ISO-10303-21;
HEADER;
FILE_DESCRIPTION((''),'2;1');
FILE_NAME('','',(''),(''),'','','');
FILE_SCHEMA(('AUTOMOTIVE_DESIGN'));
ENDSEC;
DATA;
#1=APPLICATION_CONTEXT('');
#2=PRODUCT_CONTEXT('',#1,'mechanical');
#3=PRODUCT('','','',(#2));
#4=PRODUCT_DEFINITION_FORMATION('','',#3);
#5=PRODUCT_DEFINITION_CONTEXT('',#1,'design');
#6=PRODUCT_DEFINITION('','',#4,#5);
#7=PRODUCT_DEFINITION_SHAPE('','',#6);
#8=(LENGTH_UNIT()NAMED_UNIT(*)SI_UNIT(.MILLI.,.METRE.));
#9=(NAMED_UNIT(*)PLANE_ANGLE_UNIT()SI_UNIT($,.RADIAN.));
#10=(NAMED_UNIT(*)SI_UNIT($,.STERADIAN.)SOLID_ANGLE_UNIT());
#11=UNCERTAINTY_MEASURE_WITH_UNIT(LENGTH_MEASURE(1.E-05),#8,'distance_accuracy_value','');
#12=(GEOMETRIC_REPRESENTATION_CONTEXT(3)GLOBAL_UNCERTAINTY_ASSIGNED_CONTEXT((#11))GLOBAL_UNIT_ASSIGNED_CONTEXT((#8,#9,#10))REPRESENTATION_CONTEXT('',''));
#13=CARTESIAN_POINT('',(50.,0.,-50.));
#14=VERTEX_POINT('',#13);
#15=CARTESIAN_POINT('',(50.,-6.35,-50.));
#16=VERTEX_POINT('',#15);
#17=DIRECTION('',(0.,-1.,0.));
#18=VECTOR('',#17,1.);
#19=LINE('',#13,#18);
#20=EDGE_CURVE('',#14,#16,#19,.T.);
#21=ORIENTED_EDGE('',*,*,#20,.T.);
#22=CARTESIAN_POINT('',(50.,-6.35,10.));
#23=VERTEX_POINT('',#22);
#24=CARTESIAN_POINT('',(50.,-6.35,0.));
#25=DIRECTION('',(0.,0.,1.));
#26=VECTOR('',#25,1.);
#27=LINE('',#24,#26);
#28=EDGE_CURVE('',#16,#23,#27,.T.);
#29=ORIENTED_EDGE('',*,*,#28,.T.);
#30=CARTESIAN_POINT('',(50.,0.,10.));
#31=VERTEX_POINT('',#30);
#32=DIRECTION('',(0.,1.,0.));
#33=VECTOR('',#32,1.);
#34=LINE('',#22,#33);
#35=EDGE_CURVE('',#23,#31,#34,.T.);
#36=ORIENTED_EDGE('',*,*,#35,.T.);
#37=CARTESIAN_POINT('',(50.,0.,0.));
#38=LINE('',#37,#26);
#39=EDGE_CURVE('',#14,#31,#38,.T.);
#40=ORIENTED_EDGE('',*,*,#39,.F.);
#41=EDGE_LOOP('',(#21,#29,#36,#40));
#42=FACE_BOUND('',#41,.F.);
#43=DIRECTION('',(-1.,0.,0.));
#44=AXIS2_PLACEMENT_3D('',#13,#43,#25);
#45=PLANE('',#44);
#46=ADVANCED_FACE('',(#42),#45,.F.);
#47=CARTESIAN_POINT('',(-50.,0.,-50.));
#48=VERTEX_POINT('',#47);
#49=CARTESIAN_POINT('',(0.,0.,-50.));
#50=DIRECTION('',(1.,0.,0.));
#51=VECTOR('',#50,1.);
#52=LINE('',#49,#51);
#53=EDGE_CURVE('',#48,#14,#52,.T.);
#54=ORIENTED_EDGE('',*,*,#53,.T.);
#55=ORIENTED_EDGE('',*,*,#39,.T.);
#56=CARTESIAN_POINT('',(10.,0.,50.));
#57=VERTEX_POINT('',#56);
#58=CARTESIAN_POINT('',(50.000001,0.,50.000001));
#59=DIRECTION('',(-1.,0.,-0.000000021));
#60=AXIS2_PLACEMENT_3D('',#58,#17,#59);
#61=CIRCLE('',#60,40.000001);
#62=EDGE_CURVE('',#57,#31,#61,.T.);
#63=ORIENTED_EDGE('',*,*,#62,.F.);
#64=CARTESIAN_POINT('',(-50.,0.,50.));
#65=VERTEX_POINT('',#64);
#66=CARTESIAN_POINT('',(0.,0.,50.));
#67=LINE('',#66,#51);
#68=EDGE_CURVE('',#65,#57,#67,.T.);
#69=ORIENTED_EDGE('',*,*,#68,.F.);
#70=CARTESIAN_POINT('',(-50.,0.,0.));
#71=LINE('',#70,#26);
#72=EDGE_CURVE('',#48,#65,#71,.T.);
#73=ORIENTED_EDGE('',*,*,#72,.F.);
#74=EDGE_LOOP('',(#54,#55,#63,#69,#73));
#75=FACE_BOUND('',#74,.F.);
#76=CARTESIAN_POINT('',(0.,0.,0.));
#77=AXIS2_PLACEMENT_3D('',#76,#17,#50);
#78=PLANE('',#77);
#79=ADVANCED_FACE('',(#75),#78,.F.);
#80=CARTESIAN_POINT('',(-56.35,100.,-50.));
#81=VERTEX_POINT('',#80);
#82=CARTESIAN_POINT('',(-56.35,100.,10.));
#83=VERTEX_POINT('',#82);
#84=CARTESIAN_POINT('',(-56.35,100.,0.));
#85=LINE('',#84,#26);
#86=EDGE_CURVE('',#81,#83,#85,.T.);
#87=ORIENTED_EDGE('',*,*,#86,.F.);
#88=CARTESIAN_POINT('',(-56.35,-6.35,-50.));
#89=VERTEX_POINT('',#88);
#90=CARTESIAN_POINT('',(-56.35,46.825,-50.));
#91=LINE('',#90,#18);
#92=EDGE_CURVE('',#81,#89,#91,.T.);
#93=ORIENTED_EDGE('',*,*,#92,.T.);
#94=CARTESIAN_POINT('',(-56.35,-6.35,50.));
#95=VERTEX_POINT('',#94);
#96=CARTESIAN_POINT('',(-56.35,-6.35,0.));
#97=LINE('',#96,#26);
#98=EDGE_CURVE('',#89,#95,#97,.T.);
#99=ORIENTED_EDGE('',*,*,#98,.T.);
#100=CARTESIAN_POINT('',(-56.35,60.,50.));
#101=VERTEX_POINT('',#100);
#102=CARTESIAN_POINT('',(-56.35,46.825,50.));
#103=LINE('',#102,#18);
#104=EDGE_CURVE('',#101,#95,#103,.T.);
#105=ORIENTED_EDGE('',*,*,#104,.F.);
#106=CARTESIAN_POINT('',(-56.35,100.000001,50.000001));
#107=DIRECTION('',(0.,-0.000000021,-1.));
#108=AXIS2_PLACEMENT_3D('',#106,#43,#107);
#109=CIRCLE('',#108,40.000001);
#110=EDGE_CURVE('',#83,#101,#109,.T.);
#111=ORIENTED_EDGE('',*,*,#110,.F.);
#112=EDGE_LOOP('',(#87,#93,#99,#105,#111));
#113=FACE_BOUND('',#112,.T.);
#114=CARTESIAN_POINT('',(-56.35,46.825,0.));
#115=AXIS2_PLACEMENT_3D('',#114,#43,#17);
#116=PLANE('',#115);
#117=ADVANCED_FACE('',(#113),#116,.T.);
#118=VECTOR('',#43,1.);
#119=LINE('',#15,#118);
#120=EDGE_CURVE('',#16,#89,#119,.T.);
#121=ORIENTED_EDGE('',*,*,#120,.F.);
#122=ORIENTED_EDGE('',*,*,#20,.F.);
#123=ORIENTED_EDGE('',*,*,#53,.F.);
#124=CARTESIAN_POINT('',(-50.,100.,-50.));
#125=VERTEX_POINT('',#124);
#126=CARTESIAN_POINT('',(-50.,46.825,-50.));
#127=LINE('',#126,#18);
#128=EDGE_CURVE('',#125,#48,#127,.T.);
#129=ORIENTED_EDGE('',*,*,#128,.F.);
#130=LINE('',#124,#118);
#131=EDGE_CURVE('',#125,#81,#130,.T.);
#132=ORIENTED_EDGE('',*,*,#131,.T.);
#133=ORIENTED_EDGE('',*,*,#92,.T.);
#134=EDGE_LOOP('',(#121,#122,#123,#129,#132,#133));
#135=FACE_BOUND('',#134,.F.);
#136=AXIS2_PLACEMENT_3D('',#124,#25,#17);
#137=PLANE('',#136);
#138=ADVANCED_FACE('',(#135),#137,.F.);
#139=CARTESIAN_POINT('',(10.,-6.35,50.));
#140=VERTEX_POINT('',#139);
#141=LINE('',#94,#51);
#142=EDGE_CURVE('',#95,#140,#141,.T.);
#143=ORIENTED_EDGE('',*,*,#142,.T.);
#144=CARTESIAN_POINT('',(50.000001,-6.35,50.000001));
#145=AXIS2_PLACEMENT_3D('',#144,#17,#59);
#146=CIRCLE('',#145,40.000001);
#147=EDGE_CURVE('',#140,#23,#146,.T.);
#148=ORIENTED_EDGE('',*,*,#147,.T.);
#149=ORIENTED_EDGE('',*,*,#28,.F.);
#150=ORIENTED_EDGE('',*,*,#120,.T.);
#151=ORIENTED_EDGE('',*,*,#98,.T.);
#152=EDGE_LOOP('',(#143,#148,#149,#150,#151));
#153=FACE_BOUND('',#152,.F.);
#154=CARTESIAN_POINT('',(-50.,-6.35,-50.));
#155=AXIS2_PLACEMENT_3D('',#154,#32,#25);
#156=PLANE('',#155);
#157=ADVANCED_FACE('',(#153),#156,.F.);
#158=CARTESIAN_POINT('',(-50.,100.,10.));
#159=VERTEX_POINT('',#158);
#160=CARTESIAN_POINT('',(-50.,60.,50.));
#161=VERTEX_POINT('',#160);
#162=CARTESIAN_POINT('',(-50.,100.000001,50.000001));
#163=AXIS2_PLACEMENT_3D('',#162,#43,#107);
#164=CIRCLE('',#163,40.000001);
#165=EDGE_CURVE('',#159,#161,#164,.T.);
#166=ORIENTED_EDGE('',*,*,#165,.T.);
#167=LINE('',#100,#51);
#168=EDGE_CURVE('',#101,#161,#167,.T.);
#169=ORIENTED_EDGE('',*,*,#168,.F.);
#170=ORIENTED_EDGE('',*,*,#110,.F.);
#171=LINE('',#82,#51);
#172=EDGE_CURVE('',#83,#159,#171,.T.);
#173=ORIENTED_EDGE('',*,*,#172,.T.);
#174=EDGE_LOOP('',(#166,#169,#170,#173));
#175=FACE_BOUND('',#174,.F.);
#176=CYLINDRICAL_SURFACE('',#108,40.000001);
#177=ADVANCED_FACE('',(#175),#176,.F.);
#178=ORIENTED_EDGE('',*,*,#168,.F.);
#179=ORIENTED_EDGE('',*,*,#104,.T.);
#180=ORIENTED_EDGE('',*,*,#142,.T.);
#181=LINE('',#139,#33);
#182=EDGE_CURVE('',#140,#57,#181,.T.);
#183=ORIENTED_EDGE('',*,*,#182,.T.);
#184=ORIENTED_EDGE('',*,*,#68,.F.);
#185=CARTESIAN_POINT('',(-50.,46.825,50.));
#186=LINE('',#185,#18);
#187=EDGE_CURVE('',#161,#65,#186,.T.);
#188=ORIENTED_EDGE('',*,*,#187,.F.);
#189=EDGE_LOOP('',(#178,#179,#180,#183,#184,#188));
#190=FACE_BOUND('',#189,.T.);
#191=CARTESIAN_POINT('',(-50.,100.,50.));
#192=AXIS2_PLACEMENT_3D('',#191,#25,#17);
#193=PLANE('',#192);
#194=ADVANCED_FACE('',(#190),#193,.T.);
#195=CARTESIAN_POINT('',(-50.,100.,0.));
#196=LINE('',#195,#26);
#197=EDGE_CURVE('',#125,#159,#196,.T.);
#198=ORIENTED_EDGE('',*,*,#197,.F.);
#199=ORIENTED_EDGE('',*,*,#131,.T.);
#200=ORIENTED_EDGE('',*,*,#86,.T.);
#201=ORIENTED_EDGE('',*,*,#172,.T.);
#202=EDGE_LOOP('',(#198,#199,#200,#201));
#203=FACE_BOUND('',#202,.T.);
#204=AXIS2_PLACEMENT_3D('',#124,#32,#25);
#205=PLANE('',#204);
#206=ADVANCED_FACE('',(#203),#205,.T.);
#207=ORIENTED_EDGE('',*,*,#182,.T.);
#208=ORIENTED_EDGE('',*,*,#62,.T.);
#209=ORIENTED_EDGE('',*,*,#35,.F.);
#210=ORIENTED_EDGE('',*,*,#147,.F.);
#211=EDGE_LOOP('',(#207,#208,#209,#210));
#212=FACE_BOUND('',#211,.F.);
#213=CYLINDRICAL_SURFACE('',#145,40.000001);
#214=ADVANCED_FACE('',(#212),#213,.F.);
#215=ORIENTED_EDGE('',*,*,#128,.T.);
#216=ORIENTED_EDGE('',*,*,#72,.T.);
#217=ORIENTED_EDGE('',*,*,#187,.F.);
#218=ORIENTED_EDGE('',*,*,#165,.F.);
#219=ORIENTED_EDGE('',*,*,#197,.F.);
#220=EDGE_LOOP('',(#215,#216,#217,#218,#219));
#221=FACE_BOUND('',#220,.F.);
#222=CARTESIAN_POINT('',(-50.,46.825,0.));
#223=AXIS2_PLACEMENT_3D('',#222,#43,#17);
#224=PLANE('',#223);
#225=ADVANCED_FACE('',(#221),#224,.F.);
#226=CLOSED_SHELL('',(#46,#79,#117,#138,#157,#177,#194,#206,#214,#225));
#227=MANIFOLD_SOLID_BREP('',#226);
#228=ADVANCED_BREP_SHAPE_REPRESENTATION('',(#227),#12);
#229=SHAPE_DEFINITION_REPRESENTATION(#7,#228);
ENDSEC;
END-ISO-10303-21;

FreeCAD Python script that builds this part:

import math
import FreeCAD as App
import Part
import Sketcher

V = App.Vector

doc = App.newDocument("Part")
body = doc.addObject("PartDesign::Body", "Body")

# Sketch on XZ plane
sketch1 = doc.addObject("Sketcher::SketchObject", "Sketch")
body.addObject(sketch1)
sketch1.AttachmentSupport = (doc.XZ_Plane, [""])
sketch1.MapMode = "FlatFace"
sketch1.addGeometry(Part.LineSegment(V(-50, 50, 0), V(-50, -50, 0)), False)
sketch1.addGeometry(Part.LineSegment(V(-50, -50, 0), V(50, -50, 0)), False)
sketch1.addGeometry(Part.LineSegment(V(50, -50, 0), V(50, 50, 0)), False)
sketch1.addGeometry(Part.LineSegment(V(50, 50, 0), V(-50, 50, 0)), False)
sketch1.addConstraint(Sketcher.Constraint("Coincident", 0, 2, 1, 1))
sketch1.addConstraint(Sketcher.Constraint("Coincident", 1, 2, 2, 1))
sketch1.addConstraint(Sketcher.Constraint("Coincident", 2, 2, 3, 1))
sketch1.addConstraint(Sketcher.Constraint("Coincident", 3, 2, 0, 1))
sketch1.addConstraint(Sketcher.Constraint("Vertical", 0))
sketch1.addConstraint(Sketcher.Constraint("Horizontal", 1))
sketch1.addConstraint(Sketcher.Constraint("Vertical", 2))
sketch1.addConstraint(Sketcher.Constraint("Horizontal", 3))
sketch1.addConstraint(Sketcher.Constraint("Symmetric", 0, 2, 2, 2, -1, 1))
sketch1.addConstraint(Sketcher.Constraint("Equal", 3, 0))
sketch1.addConstraint(Sketcher.Constraint("DistanceX", 1, 1, 1, 2, 100.0))
pad1 = doc.addObject("PartDesign::Pad", "Pad")
body.addObject(pad1)
pad1.Profile = sketch1
pad1.Length = 6.35

# Sketch on YZ plane
sketch2 = doc.addObject("Sketcher::SketchObject", "Sketch001")
body.addObject(sketch2)
sketch2.AttachmentSupport = (doc.YZ_Plane, [""])
sketch2.MapMode = "FlatFace"
sketch2.AttachmentOffset = App.Placement(V(0, 0, -50), App.Rotation())
sketch2.addGeometry(Part.LineSegment(V(100, 50, 0), V(100, -50, 0)), False)
sketch2.addGeometry(Part.LineSegment(V(100, -50, 0), V(-6.35, -50, 0)), False)
sketch2.addGeometry(Part.LineSegment(V(-6.35, -50, 0), V(-6.35, 50, 0)), False)
sketch2.addGeometry(Part.LineSegment(V(-6.35, 50, 0), V(100, 50, 0)), False)
sketch2.addConstraint(Sketcher.Constraint("Coincident", 0, 2, 1, 1))
sketch2.addConstraint(Sketcher.Constraint("Coincident", 1, 2, 2, 1))
sketch2.addConstraint(Sketcher.Constraint("Coincident", 2, 2, 3, 1))
sketch2.addConstraint(Sketcher.Constraint("Coincident", 3, 2, 0, 1))
sketch2.addConstraint(Sketcher.Constraint("Vertical", 0))
sketch2.addConstraint(Sketcher.Constraint("Horizontal", 1))
sketch2.addConstraint(Sketcher.Constraint("Vertical", 2))
sketch2.addConstraint(Sketcher.Constraint("Horizontal", 3))
sketch2.addConstraint(Sketcher.Constraint("DistanceY", 0, 2, 0, 1, 100.0))
sketch2.addConstraint(Sketcher.Constraint("DistanceX", -1, 1, 0, 2, 100.0))
sketch2.addConstraint(Sketcher.Constraint("DistanceY", 0, 2, -1, 1, 50.0))
sketch2.addConstraint(Sketcher.Constraint("DistanceX", 1, 2, 1, 1, 106.35))
pad2 = doc.addObject("PartDesign::Pad", "Pad001")
body.addObject(pad2)
pad2.Profile = sketch2
pad2.Length = 6.35
pad2.Reversed = True

# Sketch on YZ plane
sketch3 = doc.addObject("Sketcher::SketchObject", "Sketch002")
body.addObject(sketch3)
sketch3.AttachmentSupport = (doc.YZ_Plane, [""])
sketch3.MapMode = "FlatFace"
sketch3.AttachmentOffset = App.Placement(V(0, 0, -56.35), App.Rotation())
sketch3.addGeometry(Part.LineSegment(V(100, 50, 0), V(100, 10, 0)), False)
sketch3.addGeometry(Part.ArcOfCircle(Part.Circle(V(100.000001, 50.000001, 0), V(0, 0, 1), 40.000001), math.radians(-179.999999), math.radians(-90.000001)), False)
sketch3.addGeometry(Part.LineSegment(V(60, 50, 0), V(100, 50, 0)), False)
sketch3.addConstraint(Sketcher.Constraint("Coincident", 0, 2, 1, 2))
sketch3.addConstraint(Sketcher.Constraint("Coincident", 1, 1, 2, 1))
sketch3.addConstraint(Sketcher.Constraint("Coincident", 2, 2, 0, 1))
sketch3.addConstraint(Sketcher.Constraint("Vertical", 0))
sketch3.addConstraint(Sketcher.Constraint("Horizontal", 2))
sketch3.addConstraint(Sketcher.Constraint("Coincident", 2, 2, 1, 3))
sketch3.addConstraint(Sketcher.Constraint("Radius", 1, 40.000001))
sketch3.addConstraint(Sketcher.Constraint("DistanceX", -1, 1, 1, 3, 100.000001))
sketch3.addConstraint(Sketcher.Constraint("DistanceY", -1, 1, 1, 3, 50.000001))
pocket1 = doc.addObject("PartDesign::Pocket", "Pocket")
body.addObject(pocket1)
pocket1.Profile = sketch3
pocket1.Length = 25
pocket1.Reversed = True

# Sketch on XZ plane
sketch4 = doc.addObject("Sketcher::SketchObject", "Sketch003")
body.addObject(sketch4)
sketch4.AttachmentSupport = (doc.XZ_Plane, [""])
sketch4.MapMode = "FlatFace"
sketch4.AttachmentOffset = App.Placement(V(0, 0, 6.35), App.Rotation())
sketch4.addGeometry(Part.LineSegment(V(50, 50, 0), V(10, 50, 0)), False)
sketch4.addGeometry(Part.ArcOfCircle(Part.Circle(V(50.000001, 50.000001, 0), V(0, 0, 1), 40.000001), math.radians(-179.999999), math.radians(-90.000001)), False)
sketch4.addGeometry(Part.LineSegment(V(50, 10, 0), V(50, 50, 0)), False)
sketch4.addConstraint(Sketcher.Constraint("Coincident", 0, 2, 1, 1))
sketch4.addConstraint(Sketcher.Constraint("Coincident", 1, 2, 2, 1))
sketch4.addConstraint(Sketcher.Constraint("Coincident", 2, 2, 0, 1))
sketch4.addConstraint(Sketcher.Constraint("Horizontal", 0))
sketch4.addConstraint(Sketcher.Constraint("Vertical", 2))
sketch4.addConstraint(Sketcher.Constraint("Coincident", 2, 2, 1, 3))
sketch4.addConstraint(Sketcher.Constraint("Radius", 1, 40.000001))
sketch4.addConstraint(Sketcher.Constraint("DistanceX", -1, 1, 1, 3, 50.000001))
sketch4.addConstraint(Sketcher.Constraint("DistanceY", -1, 1, 1, 3, 50.000001))
pocket2 = doc.addObject("PartDesign::Pocket", "Pocket001")
body.addObject(pocket2)
pocket2.Profile = sketch4
pocket2.Length = 25

doc.recompute()
